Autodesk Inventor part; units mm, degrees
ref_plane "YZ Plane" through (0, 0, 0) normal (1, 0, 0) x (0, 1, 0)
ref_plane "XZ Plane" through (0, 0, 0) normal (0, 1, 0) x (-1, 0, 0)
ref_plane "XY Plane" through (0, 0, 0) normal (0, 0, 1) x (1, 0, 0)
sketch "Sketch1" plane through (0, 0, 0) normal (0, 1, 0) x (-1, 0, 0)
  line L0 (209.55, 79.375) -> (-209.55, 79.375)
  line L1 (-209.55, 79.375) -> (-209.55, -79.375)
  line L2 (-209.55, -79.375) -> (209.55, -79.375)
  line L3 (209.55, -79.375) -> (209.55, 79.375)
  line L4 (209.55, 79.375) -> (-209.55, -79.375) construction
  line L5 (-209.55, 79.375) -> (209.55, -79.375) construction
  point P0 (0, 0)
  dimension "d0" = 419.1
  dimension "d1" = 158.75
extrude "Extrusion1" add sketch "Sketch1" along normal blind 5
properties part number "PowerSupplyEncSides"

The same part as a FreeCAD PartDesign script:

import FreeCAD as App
import Part
import Sketcher
Q = App.Units.Quantity


def add_polygon(sketch, points):
    """Adds a closed chain of lines whose ends are joined by coincident constraints."""
    first, n = sketch.GeometryCount, len(points)
    for a, b in zip(points, points[1:] + points[:1]):
        sketch.addGeometry(Part.LineSegment(App.Vector(*a, 0), App.Vector(*b, 0)), False)
    for i in range(n):
        sketch.addConstraint(Sketcher.Constraint("Coincident", first + i, 2, first + (i + 1) % n, 1))

doc = App.newDocument("Part")
body = doc.addObject("PartDesign::Body", "Body")

# Sketch on XZ plane
sketch1 = body.newObject("Sketcher::SketchObject", "Sketch")
sketch1.AttachmentSupport = (doc.getObject("XZ_Plane"), [""])
sketch1.MapMode = "FlatFace"
add_polygon(sketch1, [(-210, -79), (-210, 79), (210, 79), (210, -79)])  # lines 0-3
sketch1.addConstraint(Sketcher.Constraint("Vertical", 0))
sketch1.addConstraint(Sketcher.Constraint("Horizontal", 1))
sketch1.addConstraint(Sketcher.Constraint("Vertical", 2))
sketch1.addConstraint(Sketcher.Constraint("Horizontal", 3))
sketch1.addConstraint(Sketcher.Constraint("Symmetric", 0, 2, 2, 2, -1, 1))
sketch1.addConstraint(Sketcher.Constraint("DistanceX", 1, 1, 1, 2, Q("16.5 in")))
sketch1.addConstraint(Sketcher.Constraint("DistanceY", 0, 1, 0, 2, Q("6.25 in")))
pad1 = body.newObject("PartDesign::Pad", "Pad")
pad1.Profile = sketch1
pad1.Length = 5
pad1.Reversed = True

doc.recompute()
